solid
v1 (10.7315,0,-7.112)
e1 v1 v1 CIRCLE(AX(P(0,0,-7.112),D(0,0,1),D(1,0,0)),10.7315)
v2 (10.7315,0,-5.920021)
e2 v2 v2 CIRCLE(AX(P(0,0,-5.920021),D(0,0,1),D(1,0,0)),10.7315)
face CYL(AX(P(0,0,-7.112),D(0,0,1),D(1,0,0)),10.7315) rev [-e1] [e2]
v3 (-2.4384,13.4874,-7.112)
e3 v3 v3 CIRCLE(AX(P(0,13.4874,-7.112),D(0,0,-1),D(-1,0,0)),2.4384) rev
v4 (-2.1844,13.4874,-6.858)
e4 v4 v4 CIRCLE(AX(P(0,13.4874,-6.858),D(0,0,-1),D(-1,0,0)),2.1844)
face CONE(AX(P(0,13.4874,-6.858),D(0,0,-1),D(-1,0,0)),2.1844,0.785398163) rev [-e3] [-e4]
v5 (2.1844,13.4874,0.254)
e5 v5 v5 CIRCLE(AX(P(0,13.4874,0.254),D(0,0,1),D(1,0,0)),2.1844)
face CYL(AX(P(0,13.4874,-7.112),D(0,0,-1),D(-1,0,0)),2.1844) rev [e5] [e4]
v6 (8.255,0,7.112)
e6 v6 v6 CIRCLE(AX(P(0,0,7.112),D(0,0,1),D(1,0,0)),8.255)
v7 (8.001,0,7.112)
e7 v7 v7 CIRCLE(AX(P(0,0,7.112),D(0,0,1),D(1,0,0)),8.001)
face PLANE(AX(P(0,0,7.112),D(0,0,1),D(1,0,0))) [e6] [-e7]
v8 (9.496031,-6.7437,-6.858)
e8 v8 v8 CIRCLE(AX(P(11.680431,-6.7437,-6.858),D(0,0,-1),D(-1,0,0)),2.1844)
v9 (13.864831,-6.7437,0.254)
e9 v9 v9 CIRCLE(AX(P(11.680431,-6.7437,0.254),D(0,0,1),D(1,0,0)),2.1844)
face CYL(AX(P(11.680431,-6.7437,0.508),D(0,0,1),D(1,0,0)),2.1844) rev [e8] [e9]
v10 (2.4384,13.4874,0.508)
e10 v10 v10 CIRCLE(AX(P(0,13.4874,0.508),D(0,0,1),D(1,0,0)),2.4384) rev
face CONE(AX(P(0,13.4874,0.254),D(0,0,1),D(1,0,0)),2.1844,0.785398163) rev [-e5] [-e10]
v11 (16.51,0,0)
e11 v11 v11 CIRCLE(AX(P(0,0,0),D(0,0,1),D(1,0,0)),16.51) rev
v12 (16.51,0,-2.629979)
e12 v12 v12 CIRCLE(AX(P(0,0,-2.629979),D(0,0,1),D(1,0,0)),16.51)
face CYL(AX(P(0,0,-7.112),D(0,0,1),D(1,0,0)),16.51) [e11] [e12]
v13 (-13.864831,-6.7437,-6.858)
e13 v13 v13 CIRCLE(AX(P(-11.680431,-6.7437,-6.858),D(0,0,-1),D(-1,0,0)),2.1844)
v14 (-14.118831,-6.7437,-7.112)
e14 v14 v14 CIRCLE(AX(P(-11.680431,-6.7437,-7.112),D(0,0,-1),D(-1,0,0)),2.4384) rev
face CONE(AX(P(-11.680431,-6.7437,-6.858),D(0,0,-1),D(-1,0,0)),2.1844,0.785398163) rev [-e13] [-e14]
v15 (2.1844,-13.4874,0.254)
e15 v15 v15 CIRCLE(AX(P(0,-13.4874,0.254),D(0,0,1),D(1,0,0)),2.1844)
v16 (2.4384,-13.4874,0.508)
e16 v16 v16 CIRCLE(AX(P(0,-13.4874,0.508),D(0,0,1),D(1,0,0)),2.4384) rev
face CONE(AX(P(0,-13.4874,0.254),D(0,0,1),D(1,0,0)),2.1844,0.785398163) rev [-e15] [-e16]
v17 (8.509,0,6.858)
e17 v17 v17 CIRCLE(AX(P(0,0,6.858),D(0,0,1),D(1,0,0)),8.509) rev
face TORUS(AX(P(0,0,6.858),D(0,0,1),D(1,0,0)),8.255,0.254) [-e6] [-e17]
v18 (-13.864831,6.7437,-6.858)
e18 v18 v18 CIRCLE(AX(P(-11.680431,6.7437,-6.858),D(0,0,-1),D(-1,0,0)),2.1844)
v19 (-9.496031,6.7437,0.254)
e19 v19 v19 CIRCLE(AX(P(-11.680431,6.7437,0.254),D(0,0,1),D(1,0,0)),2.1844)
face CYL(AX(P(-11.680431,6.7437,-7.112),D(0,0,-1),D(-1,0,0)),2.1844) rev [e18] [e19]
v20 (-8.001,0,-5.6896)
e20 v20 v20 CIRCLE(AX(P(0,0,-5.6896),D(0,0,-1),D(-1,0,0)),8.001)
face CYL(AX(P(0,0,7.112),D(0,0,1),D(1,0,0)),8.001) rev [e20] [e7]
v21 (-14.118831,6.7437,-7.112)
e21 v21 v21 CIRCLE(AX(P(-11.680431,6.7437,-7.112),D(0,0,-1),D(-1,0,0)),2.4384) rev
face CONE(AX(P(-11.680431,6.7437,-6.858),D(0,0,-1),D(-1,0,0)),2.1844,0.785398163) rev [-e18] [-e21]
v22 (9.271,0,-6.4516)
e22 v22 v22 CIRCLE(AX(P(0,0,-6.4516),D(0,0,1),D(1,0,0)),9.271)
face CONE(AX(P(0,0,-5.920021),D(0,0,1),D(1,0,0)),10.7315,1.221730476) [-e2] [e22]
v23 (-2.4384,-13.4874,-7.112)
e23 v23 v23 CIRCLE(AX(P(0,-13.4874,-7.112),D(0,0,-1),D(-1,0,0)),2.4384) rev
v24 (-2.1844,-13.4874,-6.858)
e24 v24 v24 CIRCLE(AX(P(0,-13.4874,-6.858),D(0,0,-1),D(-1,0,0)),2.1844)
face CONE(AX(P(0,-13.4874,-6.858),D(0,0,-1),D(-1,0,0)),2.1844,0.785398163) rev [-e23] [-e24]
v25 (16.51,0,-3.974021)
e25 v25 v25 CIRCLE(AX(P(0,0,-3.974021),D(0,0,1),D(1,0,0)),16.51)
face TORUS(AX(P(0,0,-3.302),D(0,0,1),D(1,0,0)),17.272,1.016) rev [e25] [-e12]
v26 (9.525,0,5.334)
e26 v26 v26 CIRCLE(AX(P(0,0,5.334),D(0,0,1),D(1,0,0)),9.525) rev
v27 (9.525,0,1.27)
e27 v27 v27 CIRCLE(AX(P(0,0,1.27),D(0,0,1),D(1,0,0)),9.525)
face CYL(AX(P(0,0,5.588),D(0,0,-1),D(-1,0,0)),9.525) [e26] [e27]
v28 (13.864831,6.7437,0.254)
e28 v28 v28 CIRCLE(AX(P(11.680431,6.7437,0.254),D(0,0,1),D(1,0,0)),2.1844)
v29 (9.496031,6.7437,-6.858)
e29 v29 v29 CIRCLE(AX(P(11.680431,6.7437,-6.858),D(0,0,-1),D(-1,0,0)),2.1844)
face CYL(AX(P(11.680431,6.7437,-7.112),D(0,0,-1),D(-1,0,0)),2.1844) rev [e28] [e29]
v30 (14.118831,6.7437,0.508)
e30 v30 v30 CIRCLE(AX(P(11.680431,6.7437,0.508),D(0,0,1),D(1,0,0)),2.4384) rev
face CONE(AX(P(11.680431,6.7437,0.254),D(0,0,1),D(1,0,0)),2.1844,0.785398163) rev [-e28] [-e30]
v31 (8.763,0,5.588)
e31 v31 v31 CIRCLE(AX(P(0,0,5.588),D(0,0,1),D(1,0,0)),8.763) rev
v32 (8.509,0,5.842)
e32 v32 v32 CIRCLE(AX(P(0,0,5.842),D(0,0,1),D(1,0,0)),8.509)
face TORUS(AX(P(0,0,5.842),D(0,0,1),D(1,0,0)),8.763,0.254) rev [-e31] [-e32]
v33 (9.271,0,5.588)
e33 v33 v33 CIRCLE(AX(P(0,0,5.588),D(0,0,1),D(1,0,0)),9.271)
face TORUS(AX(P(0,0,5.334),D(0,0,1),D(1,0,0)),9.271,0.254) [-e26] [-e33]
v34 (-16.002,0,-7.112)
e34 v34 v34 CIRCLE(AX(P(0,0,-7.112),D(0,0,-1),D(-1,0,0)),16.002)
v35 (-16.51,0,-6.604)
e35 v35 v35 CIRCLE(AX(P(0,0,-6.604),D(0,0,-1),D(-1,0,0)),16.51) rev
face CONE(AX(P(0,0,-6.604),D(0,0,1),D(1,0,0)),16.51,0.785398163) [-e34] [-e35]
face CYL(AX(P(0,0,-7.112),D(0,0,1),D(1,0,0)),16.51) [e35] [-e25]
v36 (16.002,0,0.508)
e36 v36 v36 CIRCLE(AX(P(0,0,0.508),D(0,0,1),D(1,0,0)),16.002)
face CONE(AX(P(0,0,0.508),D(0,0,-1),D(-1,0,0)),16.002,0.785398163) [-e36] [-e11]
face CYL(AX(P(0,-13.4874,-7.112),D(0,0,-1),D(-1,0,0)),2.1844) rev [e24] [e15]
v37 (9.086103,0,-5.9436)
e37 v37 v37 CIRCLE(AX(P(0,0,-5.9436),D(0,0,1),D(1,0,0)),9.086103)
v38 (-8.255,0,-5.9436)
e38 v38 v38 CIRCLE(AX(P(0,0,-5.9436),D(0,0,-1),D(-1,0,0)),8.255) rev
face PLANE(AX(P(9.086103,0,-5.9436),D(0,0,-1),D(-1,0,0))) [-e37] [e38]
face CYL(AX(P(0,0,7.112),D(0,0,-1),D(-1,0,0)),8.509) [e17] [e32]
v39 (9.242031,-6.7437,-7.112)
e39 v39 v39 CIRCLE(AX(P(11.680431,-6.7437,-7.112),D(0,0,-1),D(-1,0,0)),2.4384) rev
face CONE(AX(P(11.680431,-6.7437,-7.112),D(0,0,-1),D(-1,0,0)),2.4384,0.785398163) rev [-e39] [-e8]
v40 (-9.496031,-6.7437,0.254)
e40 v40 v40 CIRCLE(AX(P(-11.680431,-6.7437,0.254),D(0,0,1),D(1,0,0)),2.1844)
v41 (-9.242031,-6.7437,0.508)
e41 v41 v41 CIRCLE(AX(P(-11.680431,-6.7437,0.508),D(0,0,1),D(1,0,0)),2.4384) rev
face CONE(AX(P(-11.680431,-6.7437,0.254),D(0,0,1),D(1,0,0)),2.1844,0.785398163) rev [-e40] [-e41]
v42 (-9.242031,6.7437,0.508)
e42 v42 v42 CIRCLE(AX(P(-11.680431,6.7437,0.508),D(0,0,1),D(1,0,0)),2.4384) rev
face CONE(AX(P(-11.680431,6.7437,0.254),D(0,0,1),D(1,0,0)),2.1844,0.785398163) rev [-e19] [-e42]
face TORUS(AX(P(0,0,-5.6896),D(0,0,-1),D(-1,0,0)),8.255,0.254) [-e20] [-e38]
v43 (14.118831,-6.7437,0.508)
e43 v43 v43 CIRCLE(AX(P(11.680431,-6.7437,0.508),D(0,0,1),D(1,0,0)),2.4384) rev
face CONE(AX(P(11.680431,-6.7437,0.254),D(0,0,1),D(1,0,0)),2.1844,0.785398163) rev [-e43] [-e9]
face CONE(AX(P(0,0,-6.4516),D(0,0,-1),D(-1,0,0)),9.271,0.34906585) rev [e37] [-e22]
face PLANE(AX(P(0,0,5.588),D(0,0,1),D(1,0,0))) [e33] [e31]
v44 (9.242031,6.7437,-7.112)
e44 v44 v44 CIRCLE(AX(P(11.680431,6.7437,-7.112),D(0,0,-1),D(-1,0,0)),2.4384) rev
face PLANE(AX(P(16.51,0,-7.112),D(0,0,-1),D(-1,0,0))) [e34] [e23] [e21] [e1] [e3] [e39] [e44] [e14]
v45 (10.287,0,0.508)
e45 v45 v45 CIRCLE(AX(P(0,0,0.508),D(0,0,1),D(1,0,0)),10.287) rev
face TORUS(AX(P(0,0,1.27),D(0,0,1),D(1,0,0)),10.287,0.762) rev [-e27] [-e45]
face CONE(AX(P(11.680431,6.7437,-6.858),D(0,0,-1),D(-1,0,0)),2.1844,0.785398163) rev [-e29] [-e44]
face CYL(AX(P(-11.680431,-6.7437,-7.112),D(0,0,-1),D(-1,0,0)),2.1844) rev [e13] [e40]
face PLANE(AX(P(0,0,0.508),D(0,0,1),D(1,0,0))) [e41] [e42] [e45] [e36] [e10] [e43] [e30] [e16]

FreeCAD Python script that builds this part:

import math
import FreeCAD as App
import Part
import Sketcher
from FreeCAD import Vector
Q = App.Units.Quantity


def edges_at(feature, points):
    """Names of the edges that pass closest to the given points."""
    edges = feature.Shape.Edges
    near = lambda p: min(range(len(edges)), key=lambda i: edges[i].distToShape(Part.Vertex(*p))[0])
    return sorted({f"Edge{near(p) + 1}" for p in points})

doc = App.newDocument("Part")
params = doc.addObject("Spreadsheet::Sheet", "Params")
for row, (alias, value) in enumerate([
    ("sketch1_radius", "0.04 in"),
    ("sketch1_width", "0.65 in"),
    ("sketch1_height", "0.254 in"),
    ("revolution_angle", "360 deg"),
    ("sketch2_diameter", "0.75 in"),
    ("pad1_length", "0.2 in"),
    ("sketch3_diameter", "0.67 in"),
    ("pad2_length", "0.06 in"),
    ("sketch4_diameter", "0.63 in"),
    ("hole_diameter", "0.63 in"),
    ("hole_depth", "0.56 in"),
    ("sketch5_diameter", "0.172 in"),
    ("hole2_diameter", "0.172 in"),
    ("sketch6_diameter", "0.172 in"),
    ("hole3_diameter", "0.172 in"),
    ("hole3_depth", "0.56 in"),
    ("chamfer_size", "0.01 in"),
    ("chamfer2_size", "0.02 in"),
    ("fillet_radius", "0.01 in"),
    ("fillet2_radius", "0.03 in"),
], start=1):
    params.set(f"A{row}", alias)
    params.set(f"B{row}", "=" + value)
    params.setAlias(f"B{row}", alias)

body = doc.addObject("PartDesign::Body", "Body")

# Sketch on XZ plane
sketch1 = doc.addObject("Sketcher::SketchObject", "Sketch")
body.addObject(sketch1)
sketch1.AttachmentSupport = (doc.XZ_Plane, [""])
sketch1.MapMode = "FlatFace"
sketch1.addGeometry([
    Part.LineSegment(Vector(9.1, -5.9, 0), Vector(0, -5.9, 0)),  # 0
    Part.LineSegment(Vector(0, -5.9, 0), Vector(0, 0.5, 0)),  # 1
    Part.LineSegment(Vector(0, 0.5, 0), Vector(16.5, 0.5, 0)),  # 2
    Part.LineSegment(Vector(16.5, 0.5, 0), Vector(16.5, -2.6, 0)),  # 3
    Part.ArcOfCircle(Part.Circle(Vector(17.3, -3.3, 0), Vector(0, 0, 1), 1), math.radians(139), math.radians(221)),  # 4
    Part.LineSegment(Vector(16.5, -4, 0), Vector(16.5, -7.1, 0)),  # 5
    Part.LineSegment(Vector(16.5, -7.1, 0), Vector(10.7, -7.1, 0)),  # 6
    Part.LineSegment(Vector(10.7, -7.1, 0), Vector(10.7, -5.9, 0)),  # 7
    Part.LineSegment(Vector(10.7, -5.9, 0), Vector(9.3, -6.5, 0)),  # 8
    Part.LineSegment(Vector(9.3, -6.5, 0), Vector(9.1, -5.9, 0)),  # 9
], False)
sketch1.addConstraint([
    Sketcher.Constraint("Coincident", 0, 2, 1, 1),
    Sketcher.Constraint("Coincident", 1, 2, 2, 1),
    Sketcher.Constraint("Coincident", 2, 2, 3, 1),
    Sketcher.Constraint("Coincident", 3, 2, 4, 1),
    Sketcher.Constraint("Coincident", 4, 2, 5, 1),
    Sketcher.Constraint("Coincident", 5, 2, 6, 1),
    Sketcher.Constraint("Coincident", 6, 2, 7, 1),
    Sketcher.Constraint("Coincident", 7, 2, 8, 1),
    Sketcher.Constraint("Coincident", 8, 2, 9, 1),
    Sketcher.Constraint("Coincident", 9, 2, 0, 1),
    Sketcher.Constraint("Horizontal", 0),
    Sketcher.Constraint("Vertical", 1),
    Sketcher.Constraint("Horizontal", 2),
    Sketcher.Constraint("Vertical", 3),
    Sketcher.Constraint("Vertical", 5),
    Sketcher.Constraint("Horizontal", 6),
    Sketcher.Constraint("Vertical", 7),
    Sketcher.Constraint("PointOnObject", 0, 2, -2),
    Sketcher.Constraint("Perpendicular", 8, 9),
    Sketcher.Constraint("Vertical", 3, 2, 4, 2),
    Sketcher.Constraint("Equal", 3, 5),
    Sketcher.Constraint("Radius", 4, Q("0.04 in")),
    Sketcher.Constraint("Angle", 8, Q("-160 deg")),
    Sketcher.Constraint("DistanceX", 2, 1, 2, 2, Q("0.65 in")),
    Sketcher.Constraint("DistanceY", 5, 2, 2, 2, Q("0.3 in")),
    Sketcher.Constraint("DistanceY", 1, 1, 1, 2, Q("0.254 in")),
    Sketcher.Constraint("DistanceX", -1, 1, 4, 3, Q("0.68 in")),
    Sketcher.Constraint("DistanceY", 4, 3, -1, 1, Q("0.13 in")),
    Sketcher.Constraint("DistanceY", 8, 2, 9, 2, Q("0.02 in")),
    Sketcher.Constraint("DistanceX", 6, 2, 6, 1, Q("0.2275 in")),
    Sketcher.Constraint("DistanceX", -1, 1, 8, 2, Q("0.365 in")),
])
sketch1.setExpression("Constraints[21]", "Params.sketch1_radius")
sketch1.setExpression("Constraints[23]", "Params.sketch1_width")
sketch1.setExpression("Constraints[25]", "Params.sketch1_height")
revolution = doc.addObject("PartDesign::Revolution", "Revolution")
body.addObject(revolution)
revolution.Profile = sketch1
revolution.ReferenceAxis = (sketch1, ["V_Axis"])
revolution.setExpression("Angle", "Params.revolution_angle")

# Sketch on XY plane
sketch2 = doc.addObject("Sketcher::SketchObject", "Sketch001")
body.addObject(sketch2)
sketch2.AttachmentSupport = (doc.XY_Plane, [""])
sketch2.MapMode = "FlatFace"
sketch2.AttachmentOffset = App.Placement(Vector(0, 0, 0.02 * 25.4), App.Rotation())
sketch2.addGeometry(Part.Circle(Vector(0, 0, 0), Vector(0, 0, 1), 10), False)
sketch2.addConstraint([
    Sketcher.Constraint("Coincident", 0, 3, -1, 1),
    Sketcher.Constraint("Diameter", 0, Q("0.75 in")),
])
sketch2.setExpression("Constraints[1]", "Params.sketch2_diameter")
pad1 = doc.addObject("PartDesign::Pad", "Pad")
body.addObject(pad1)
pad1.Profile = sketch2
pad1.setExpression("Length", "Params.pad1_length")

# Sketch on XY plane
sketch3 = doc.addObject("Sketcher::SketchObject", "Sketch002")
body.addObject(sketch3)
sketch3.AttachmentSupport = (doc.XY_Plane, [""])
sketch3.MapMode = "FlatFace"
sketch3.AttachmentOffset = App.Placement(Vector(0, 0, 0.22 * 25.4), App.Rotation())
sketch3.addGeometry(Part.Circle(Vector(0, 0, 0), Vector(0, 0, 1), 9), False)
sketch3.addConstraint([
    Sketcher.Constraint("Coincident", 0, 3, -1, 1),
    Sketcher.Constraint("Diameter", 0, Q("0.67 in")),
])
sketch3.setExpression("Constraints[1]", "Params.sketch3_diameter")
pad2 = doc.addObject("PartDesign::Pad", "Pad001")
body.addObject(pad2)
pad2.Profile = sketch3
pad2.setExpression("Length", "Params.pad2_length")

# Sketch on XY plane
sketch4 = doc.addObject("Sketcher::SketchObject", "Sketch003")
body.addObject(sketch4)
sketch4.AttachmentSupport = (doc.XY_Plane, [""])
sketch4.MapMode = "FlatFace"
sketch4.AttachmentOffset = App.Placement(Vector(0, 0, 0.28 * 25.4), App.Rotation())
sketch4.addGeometry(Part.Circle(Vector(0, 0, 0), Vector(0, 0, 1), 8), False)
sketch4.addConstraint([
    Sketcher.Constraint("Coincident", 0, 3, -1, 1),
    Sketcher.Constraint("Diameter", 0, Q("0.63 in")),
])
sketch4.setExpression("Constraints[1]", "Params.sketch4_diameter")
doc.recompute()
hole = doc.addObject("PartDesign::Hole", "Hole")
body.addObject(hole)
hole.Profile = sketch4
hole.ThreadType = "None"
hole.setExpression("Diameter", "Params.hole_diameter")
hole.DepthType = "Dimension"
hole.setExpression("Depth", "Params.hole_depth")
hole.DrillPoint = "Flat"

# Sketch on XY plane
sketch5 = doc.addObject("Sketcher::SketchObject", "Sketch004")
body.addObject(sketch5)
sketch5.AttachmentSupport = (doc.XY_Plane, [""])
sketch5.MapMode = "FlatFace"
sketch5.AttachmentOffset = App.Placement(Vector(0, 0, 0.02 * 25.4), App.Rotation())
sketch5.addGeometry(Part.Circle(Vector(11.7, -6.7, 0), Vector(0, 0, 1), 2.2), False)
sketch5.addConstraint([
    Sketcher.Constraint("Diameter", 0, Q("0.172 in")),
    Sketcher.Constraint("DistanceY", 0, 3, -1, 1, Q("0.2655 in")),
    Sketcher.Constraint("DistanceX", -1, 1, 0, 3, Q("11.680431 mm")),
])
sketch5.setExpression("Constraints[0]", "Params.sketch5_diameter")
doc.recompute()
hole2 = doc.addObject("PartDesign::Hole", "Hole001")
body.addObject(hole2)
hole2.Profile = sketch5
hole2.ThreadType = "None"
hole2.setExpression("Diameter", "Params.hole2_diameter")
hole2.DepthType = "ThroughAll"

# Sketch on XY plane
sketch6 = doc.addObject("Sketcher::SketchObject", "Sketch005")
body.addObject(sketch6)
sketch6.AttachmentSupport = (doc.XY_Plane, [""])
sketch6.MapMode = "FlatFace"
sketch6.AttachmentOffset = App.Placement(Vector(0, 0, -0.28 * 25.4), App.Rotation())
sketch6.addGeometry([
    Part.Circle(Vector(0, 13.5, 0), Vector(0, 0, 1), 2.2),  # 0
    Part.Circle(Vector(-11.7, 6.7, 0), Vector(0, 0, 1), 2.2),  # 1
    Part.Circle(Vector(-11.7, -6.7, 0), Vector(0, 0, 1), 2.2),  # 2
    Part.Circle(Vector(0, -13.5, 0), Vector(0, 0, 1), 2.2),  # 3
    Part.Circle(Vector(11.7, 6.7, 0), Vector(0, 0, 1), 2.2),  # 4
], False)
sketch6.addConstraint([
    Sketcher.Constraint("Equal", 0, 1),
    Sketcher.Constraint("Equal", 1, 2),
    Sketcher.Constraint("Equal", 2, 3),
    Sketcher.Constraint("Equal", 3, 4),
    Sketcher.Constraint("Symmetric", 0, 3, 3, 3, -1, 1),
    Sketcher.Constraint("Symmetric", 2, 3, 4, 3, -1, 1),
    Sketcher.Constraint("Symmetric", 1, 3, 4, 3, -2),
    Sketcher.Constraint("PointOnObject", 0, 3, -2),
    Sketcher.Constraint("Diameter", 0, Q("0.172 in")),
    Sketcher.Constraint("DistanceY", -1, 1, 0, 3, Q("0.531 in")),
    Sketcher.Constraint("DistanceY", 2, 3, 1, 3, Q("0.531 in")),
    Sketcher.Constraint("DistanceX", 1, 3, -1, 1, Q("11.680431 mm")),
])
sketch6.setExpression("Constraints[8]", "Params.sketch6_diameter")
doc.recompute()
hole3 = doc.addObject("PartDesign::Hole", "Hole002")
body.addObject(hole3)
hole3.Profile = sketch6
hole3.ThreadType = "None"
hole3.setExpression("Diameter", "Params.hole3_diameter")
hole3.DepthType = "Dimension"
hole3.setExpression("Depth", "Params.hole3_depth")
hole3.DrillPoint = "Flat"
hole3.Reversed = True
doc.recompute()

chamfer = doc.addObject("PartDesign::Chamfer", "Chamfer")
body.addObject(chamfer)
chamfer.Base = (hole3, edges_at(hole3, [
    (13.865, -6.744, 0.508),
    (13.865, -6.744, -7.112),
    (9.496, 6.744, 0.508),
    (9.496, 6.744, -7.112),
    (-2.184, -13.487, 0.508),
    (-2.184, -13.487, -7.112),
    (-13.865, -6.744, 0.508),
    (-13.865, -6.744, -7.112),
    (-13.865, 6.744, 0.508),
    (-13.865, 6.744, -7.112),
    (-2.184, 13.487, 0.508),
    (-2.184, 13.487, -7.112),
]))
chamfer.setExpression("Size", "Params.chamfer_size")
doc.recompute()

chamfer2 = doc.addObject("PartDesign::Chamfer", "Chamfer001")
body.addObject(chamfer2)
chamfer2.Base = (chamfer, edges_at(chamfer, [(-16.51, 0, 0.508), (-16.51, 0, -7.112)]))
chamfer2.setExpression("Size", "Params.chamfer2_size")
doc.recompute()

fillet = doc.addObject("PartDesign::Fillet", "Fillet")
body.addObject(fillet)
fillet.Base = (chamfer2, edges_at(chamfer2, [
    (-9.525, 0, 5.588),
    (-8.509, 0, 5.588),
    (-8.509, 0, 7.112),
    (8.001, 0, -5.944),
]))
fillet.setExpression("Radius", "Params.fillet_radius")
doc.recompute()

fillet2 = doc.addObject("PartDesign::Fillet", "Fillet001")
body.addObject(fillet2)
fillet2.Base = (fillet, edges_at(fillet, [(-9.525, 0, 0.508)]))
fillet2.setExpression("Radius", "Params.fillet2_radius")

doc.recompute()
